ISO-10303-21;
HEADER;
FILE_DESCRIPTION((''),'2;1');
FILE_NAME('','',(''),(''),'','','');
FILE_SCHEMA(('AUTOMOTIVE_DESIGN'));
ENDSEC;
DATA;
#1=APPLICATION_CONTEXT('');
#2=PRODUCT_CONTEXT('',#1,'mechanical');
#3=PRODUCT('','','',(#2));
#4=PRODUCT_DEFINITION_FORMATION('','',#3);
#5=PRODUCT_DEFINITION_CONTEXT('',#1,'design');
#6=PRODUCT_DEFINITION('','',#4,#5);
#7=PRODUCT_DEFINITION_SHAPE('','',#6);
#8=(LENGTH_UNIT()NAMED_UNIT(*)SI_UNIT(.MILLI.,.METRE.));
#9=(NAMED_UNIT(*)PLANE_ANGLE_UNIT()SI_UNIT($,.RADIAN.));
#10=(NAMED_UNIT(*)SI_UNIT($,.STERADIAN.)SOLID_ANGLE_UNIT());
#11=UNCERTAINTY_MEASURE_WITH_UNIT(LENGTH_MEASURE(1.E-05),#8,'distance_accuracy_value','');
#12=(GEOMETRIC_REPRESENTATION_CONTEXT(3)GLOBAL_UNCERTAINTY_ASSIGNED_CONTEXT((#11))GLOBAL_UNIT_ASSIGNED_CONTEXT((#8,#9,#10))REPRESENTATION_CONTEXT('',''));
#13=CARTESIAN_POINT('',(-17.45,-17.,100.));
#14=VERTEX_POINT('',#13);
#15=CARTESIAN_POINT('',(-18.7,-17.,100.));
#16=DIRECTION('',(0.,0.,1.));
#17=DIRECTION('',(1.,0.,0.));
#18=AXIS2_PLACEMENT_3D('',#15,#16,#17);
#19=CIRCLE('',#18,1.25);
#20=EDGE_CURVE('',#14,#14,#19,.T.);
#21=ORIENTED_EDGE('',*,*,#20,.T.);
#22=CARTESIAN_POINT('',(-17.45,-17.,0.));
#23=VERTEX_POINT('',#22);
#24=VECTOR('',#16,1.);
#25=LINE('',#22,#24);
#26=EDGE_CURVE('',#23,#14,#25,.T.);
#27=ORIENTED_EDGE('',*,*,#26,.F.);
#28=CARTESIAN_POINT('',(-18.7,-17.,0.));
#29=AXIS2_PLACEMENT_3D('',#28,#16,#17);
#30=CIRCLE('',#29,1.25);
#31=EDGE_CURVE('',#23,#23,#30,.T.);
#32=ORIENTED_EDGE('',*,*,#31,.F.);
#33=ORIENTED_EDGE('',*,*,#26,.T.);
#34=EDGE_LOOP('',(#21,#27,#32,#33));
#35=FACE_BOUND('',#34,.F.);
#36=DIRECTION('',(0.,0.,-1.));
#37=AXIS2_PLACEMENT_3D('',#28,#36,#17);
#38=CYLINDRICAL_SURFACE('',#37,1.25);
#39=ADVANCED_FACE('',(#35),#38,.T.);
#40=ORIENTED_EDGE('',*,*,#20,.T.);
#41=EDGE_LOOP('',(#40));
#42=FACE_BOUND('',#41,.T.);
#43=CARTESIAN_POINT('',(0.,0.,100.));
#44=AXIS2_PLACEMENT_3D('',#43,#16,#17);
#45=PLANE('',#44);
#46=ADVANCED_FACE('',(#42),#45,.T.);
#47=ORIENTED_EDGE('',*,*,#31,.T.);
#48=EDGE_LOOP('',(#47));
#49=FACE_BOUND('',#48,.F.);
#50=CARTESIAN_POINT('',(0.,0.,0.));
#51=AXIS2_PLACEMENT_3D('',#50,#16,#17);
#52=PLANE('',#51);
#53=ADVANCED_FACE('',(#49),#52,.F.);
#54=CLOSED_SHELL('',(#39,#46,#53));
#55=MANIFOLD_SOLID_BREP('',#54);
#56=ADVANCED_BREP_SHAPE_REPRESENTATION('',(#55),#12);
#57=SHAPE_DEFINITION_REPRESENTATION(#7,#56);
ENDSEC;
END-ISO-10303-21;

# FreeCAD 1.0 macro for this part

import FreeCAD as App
import Part
import Sketcher
from FreeCAD import Vector

doc = App.newDocument("Part")
params = doc.addObject("Spreadsheet::Sheet", "Params")
for row, (alias, value) in enumerate([
    ("sketch1_diameter", "2.5 mm"),
    ("pad1_length", "100 mm"),
], start=1):
    params.set(f"A{row}", alias)
    params.set(f"B{row}", "=" + value)
    params.setAlias(f"B{row}", alias)

body = doc.addObject("PartDesign::Body", "Body")

# Sketch on XY plane
sketch1 = doc.addObject("Sketcher::SketchObject", "Sketch")
body.addObject(sketch1)
sketch1.AttachmentSupport = (doc.XY_Plane, [""])
sketch1.MapMode = "FlatFace"
sketch1.addGeometry(Part.Circle(Vector(-18.7, -17, 0), Vector(0, 0, 1), 1.25), False)
sketch1.addConstraint(Sketcher.Constraint("Diameter", 0, 2.5))
sketch1.addConstraint(Sketcher.Constraint("DistanceY", 0, 3, -1, 1, 17.0))
sketch1.addConstraint(Sketcher.Constraint("DistanceX", 0, 3, -1, 1, 18.7))
sketch1.setExpression("Constraints[0]", "Params.sketch1_diameter")
pad1 = doc.addObject("PartDesign::Pad", "Pad")
body.addObject(pad1)
pad1.Profile = sketch1
pad1.setExpression("Length", "Params.pad1_length")

doc.recompute()
